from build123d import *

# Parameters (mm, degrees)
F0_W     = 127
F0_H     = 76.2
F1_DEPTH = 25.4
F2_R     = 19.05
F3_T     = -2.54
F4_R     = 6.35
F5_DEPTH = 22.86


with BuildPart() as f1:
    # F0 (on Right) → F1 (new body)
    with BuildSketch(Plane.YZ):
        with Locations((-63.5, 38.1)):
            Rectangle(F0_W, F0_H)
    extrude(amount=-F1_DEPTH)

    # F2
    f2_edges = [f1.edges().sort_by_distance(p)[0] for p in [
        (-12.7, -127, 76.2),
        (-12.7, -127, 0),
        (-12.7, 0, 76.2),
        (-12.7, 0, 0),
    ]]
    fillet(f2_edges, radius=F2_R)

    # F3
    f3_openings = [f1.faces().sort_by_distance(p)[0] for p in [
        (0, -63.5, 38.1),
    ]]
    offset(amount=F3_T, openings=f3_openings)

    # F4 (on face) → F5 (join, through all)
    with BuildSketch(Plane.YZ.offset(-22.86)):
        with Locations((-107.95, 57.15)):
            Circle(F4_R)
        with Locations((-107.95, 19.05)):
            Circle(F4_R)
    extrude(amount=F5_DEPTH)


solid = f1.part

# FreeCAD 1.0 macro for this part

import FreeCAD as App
import Part
import Sketcher
Q = App.Units.Quantity


def edges_at(feature, points):
    """Names of the edges that pass closest to the given points."""
    edges = feature.Shape.Edges
    near = lambda p: min(range(len(edges)), key=lambda i: edges[i].distToShape(Part.Vertex(*p))[0])
    return sorted({f"Edge{near(p) + 1}" for p in points})


def faces_at(feature, points):
    """Names of the faces that lie closest to the given points."""
    faces = feature.Shape.Faces
    near = lambda p: min(range(len(faces)), key=lambda i: faces[i].distToShape(Part.Vertex(*p))[0])
    return sorted({f"Face{near(p) + 1}" for p in points})


def add_polygon(sketch, points):
    """Adds a closed chain of lines whose ends are joined by coincident constraints."""
    first, n = sketch.GeometryCount, len(points)
    for a, b in zip(points, points[1:] + points[:1]):
        sketch.addGeometry(Part.LineSegment(App.Vector(*a, 0), App.Vector(*b, 0)), False)
    for i in range(n):
        sketch.addConstraint(Sketcher.Constraint("Coincident", first + i, 2, first + (i + 1) % n, 1))

doc = App.newDocument("Part")
body = doc.addObject("PartDesign::Body", "Body")

sketch1 = body.newObject("Sketcher::SketchObject", "Sketch")
sketch1.AttachmentSupport = (doc.getObject("YZ_Plane"), [""])
sketch1.MapMode = "FlatFace"
add_polygon(sketch1, [(-127, 76.2), (-127, 0), (0, 0), (0, 76.2)])
sketch1.addConstraint([
    Sketcher.Constraint("Vertical", 0),
    Sketcher.Constraint("Horizontal", 1),
    Sketcher.Constraint("Vertical", 2),
    Sketcher.Constraint("Horizontal", 3),
    Sketcher.Constraint("Coincident", 1, 2, -1, 1),
    Sketcher.Constraint("DistanceX", 1, 1, 1, 2, Q("5 in")),
    Sketcher.Constraint("DistanceY", 0, 2, 0, 1, Q("3 in")),
])
pad1 = body.newObject("PartDesign::Pad", "Pad")
pad1.Profile = sketch1
pad1.Length = Q("1 in")
pad1.Reversed = True
doc.recompute()

fillet = body.newObject("PartDesign::Fillet", "Fillet")
fillet.Base = (pad1, edges_at(pad1, [
    (-12.7, -127, 76.2),
    (-12.7, -127, 0),
    (-12.7, 0, 76.2),
    (-12.7, 0, 0),
]))
fillet.Radius = Q("0.75 in")
doc.recompute()

thickness = body.newObject("PartDesign::Thickness", "Thickness")
thickness.Base = (fillet, faces_at(fillet, [(0, -63.5, 38.1)]))
thickness.Value = Q("0.1 in")
thickness.Reversed = True
thickness.Join = "Arc"

sketch2 = body.newObject("Sketcher::SketchObject", "Sketch001")
sketch2.AttachmentSupport = (doc.getObject("YZ_Plane"), [""])
sketch2.MapMode = "FlatFace"
sketch2.AttachmentOffset = App.Placement(App.Vector(0, 0, -0.9 * 25.4), App.Rotation())
sketch2.addGeometry([
    Part.Circle(App.Vector(-107.95, 57.15, 0), App.Vector(0, 0, 1), 6.35),
    Part.Circle(App.Vector(-107.95, 19.05, 0), App.Vector(0, 0, 1), 6.35),
], False)
sketch2.addConstraint([
    Sketcher.Constraint("Equal", 0, 1),
    Sketcher.Constraint("Vertical", 0, 3, 1, 3),
    Sketcher.Constraint("Diameter", 0, Q("0.5 in")),
    Sketcher.Constraint("DistanceY", 1, 3, 0, 3, Q("1.5 in")),
    Sketcher.Constraint("DistanceX", 0, 3, -1, 1, Q("4.25 in")),
    Sketcher.Constraint("DistanceY", -1, 1, 0, 3, Q("2.25 in")),
])
pad2 = body.newObject("PartDesign::Pad", "Pad001")
pad2.Profile = sketch2
pad2.Length = Q("0.9 in")

doc.recompute()
